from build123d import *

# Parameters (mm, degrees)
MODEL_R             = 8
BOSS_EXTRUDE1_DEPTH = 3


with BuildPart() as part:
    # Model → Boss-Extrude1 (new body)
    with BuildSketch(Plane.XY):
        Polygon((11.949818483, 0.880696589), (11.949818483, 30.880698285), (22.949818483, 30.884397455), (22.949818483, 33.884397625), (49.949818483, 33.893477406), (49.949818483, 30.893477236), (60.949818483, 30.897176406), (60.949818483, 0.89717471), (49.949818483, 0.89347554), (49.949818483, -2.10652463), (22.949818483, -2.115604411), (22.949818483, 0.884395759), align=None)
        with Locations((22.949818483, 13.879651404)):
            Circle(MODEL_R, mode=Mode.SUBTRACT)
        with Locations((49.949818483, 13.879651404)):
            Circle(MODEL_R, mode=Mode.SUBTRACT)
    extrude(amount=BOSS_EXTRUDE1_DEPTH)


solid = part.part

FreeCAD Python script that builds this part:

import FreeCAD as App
import Part
import Sketcher
from FreeCAD import Vector
Q = App.Units.Quantity


def add_polygon(sketch, points):
    """Adds a closed chain of lines whose ends are joined by coincident constraints."""
    first, n = sketch.GeometryCount, len(points)
    for a, b in zip(points, points[1:] + points[:1]):
        sketch.addGeometry(Part.LineSegment(App.Vector(*a, 0), App.Vector(*b, 0)), False)
    for i in range(n):
        sketch.addConstraint(Sketcher.Constraint("Coincident", first + i, 2, first + (i + 1) % n, 1))

doc = App.newDocument("Part")
body = doc.addObject("PartDesign::Body", "Body")

# Sketch on XY plane
sketch1 = body.newObject("Sketcher::SketchObject", "Sketch")
sketch1.AttachmentSupport = (doc.getObject("XY_Plane"), [""])
sketch1.MapMode = "FlatFace"
add_polygon(sketch1, [(11.949818, 30.880698), (11.949818, 0.880697), (22.949818, 0.884396), (22.949818, -2.115604), (49.949818, -2.106525), (49.949818, 0.893476), (60.949818, 0.897175), (60.949818, 30.897176), (49.949818, 30.893477), (49.949818, 33.893477), (22.949818, 33.884398), (22.949818, 30.884397)])  # lines 0-11
sketch1.addGeometry(Part.Circle(Vector(49.949818, 13.879651, 0), Vector(0, 0, 1), 8), False)  # 12
sketch1.addGeometry(Part.Circle(Vector(22.949818, 13.879651, 0), Vector(0, 0, 1), 8), False)  # 13
sketch1.addConstraint([
    Sketcher.Constraint("Vertical", 0),
    Sketcher.Constraint("Vertical", 2),
    Sketcher.Constraint("Vertical", 4),
    Sketcher.Constraint("Vertical", 6),
    Sketcher.Constraint("Vertical", 8),
    Sketcher.Constraint("Vertical", 10),
    Sketcher.Constraint("Equal", 12, 13),
    Sketcher.Constraint("Parallel", 1, 3),
    Sketcher.Constraint("Parallel", 3, 5),
    Sketcher.Constraint("Parallel", 5, 7),
    Sketcher.Constraint("Parallel", 7, 9),
    Sketcher.Constraint("Parallel", 9, 11),
    Sketcher.Constraint("Horizontal", 12, 3, 13, 3),
    Sketcher.Constraint("Vertical", 13, 3, 1, 2),
    Sketcher.Constraint("Vertical", 12, 3, 3, 2),
    Sketcher.Constraint("Vertical", 4, 2, 7, 2),
    Sketcher.Constraint("Vertical", 2, 2, 9, 2),
    Sketcher.Constraint("Equal", 2, 4),
    Sketcher.Constraint("Equal", 0, 6),
    Sketcher.Constraint("Equal", 4, 8),
    Sketcher.Constraint("Equal", 1, 5),
    Sketcher.Constraint("Diameter", 12, Q("16 mm")),
    Sketcher.Constraint("DistanceY", 0, 2, 0, 1, Q("30.000002 mm")),
    Sketcher.Constraint("DistanceY", 2, 2, 2, 1, Q("3 mm")),
    Sketcher.Constraint("Distance", 1, Q("11.000001 mm")),
    Sketcher.Constraint("Distance", 3, Q("27.000002 mm")),
    Sketcher.Constraint("DistanceY", -1, 1, 11, 2, Q("30.880698 mm")),
    Sketcher.Constraint("DistanceY", 0, 2, 1, 2, Q("0.003699 mm")),
    Sketcher.Constraint("DistanceX", -1, 1, 12, 3, Q("49.949818 mm")),
    Sketcher.Constraint("DistanceY", -1, 1, 12, 3, Q("13.879651 mm")),
])
pad1 = body.newObject("PartDesign::Pad", "Pad")
pad1.Profile = sketch1
pad1.Length = 3

doc.recompute()
